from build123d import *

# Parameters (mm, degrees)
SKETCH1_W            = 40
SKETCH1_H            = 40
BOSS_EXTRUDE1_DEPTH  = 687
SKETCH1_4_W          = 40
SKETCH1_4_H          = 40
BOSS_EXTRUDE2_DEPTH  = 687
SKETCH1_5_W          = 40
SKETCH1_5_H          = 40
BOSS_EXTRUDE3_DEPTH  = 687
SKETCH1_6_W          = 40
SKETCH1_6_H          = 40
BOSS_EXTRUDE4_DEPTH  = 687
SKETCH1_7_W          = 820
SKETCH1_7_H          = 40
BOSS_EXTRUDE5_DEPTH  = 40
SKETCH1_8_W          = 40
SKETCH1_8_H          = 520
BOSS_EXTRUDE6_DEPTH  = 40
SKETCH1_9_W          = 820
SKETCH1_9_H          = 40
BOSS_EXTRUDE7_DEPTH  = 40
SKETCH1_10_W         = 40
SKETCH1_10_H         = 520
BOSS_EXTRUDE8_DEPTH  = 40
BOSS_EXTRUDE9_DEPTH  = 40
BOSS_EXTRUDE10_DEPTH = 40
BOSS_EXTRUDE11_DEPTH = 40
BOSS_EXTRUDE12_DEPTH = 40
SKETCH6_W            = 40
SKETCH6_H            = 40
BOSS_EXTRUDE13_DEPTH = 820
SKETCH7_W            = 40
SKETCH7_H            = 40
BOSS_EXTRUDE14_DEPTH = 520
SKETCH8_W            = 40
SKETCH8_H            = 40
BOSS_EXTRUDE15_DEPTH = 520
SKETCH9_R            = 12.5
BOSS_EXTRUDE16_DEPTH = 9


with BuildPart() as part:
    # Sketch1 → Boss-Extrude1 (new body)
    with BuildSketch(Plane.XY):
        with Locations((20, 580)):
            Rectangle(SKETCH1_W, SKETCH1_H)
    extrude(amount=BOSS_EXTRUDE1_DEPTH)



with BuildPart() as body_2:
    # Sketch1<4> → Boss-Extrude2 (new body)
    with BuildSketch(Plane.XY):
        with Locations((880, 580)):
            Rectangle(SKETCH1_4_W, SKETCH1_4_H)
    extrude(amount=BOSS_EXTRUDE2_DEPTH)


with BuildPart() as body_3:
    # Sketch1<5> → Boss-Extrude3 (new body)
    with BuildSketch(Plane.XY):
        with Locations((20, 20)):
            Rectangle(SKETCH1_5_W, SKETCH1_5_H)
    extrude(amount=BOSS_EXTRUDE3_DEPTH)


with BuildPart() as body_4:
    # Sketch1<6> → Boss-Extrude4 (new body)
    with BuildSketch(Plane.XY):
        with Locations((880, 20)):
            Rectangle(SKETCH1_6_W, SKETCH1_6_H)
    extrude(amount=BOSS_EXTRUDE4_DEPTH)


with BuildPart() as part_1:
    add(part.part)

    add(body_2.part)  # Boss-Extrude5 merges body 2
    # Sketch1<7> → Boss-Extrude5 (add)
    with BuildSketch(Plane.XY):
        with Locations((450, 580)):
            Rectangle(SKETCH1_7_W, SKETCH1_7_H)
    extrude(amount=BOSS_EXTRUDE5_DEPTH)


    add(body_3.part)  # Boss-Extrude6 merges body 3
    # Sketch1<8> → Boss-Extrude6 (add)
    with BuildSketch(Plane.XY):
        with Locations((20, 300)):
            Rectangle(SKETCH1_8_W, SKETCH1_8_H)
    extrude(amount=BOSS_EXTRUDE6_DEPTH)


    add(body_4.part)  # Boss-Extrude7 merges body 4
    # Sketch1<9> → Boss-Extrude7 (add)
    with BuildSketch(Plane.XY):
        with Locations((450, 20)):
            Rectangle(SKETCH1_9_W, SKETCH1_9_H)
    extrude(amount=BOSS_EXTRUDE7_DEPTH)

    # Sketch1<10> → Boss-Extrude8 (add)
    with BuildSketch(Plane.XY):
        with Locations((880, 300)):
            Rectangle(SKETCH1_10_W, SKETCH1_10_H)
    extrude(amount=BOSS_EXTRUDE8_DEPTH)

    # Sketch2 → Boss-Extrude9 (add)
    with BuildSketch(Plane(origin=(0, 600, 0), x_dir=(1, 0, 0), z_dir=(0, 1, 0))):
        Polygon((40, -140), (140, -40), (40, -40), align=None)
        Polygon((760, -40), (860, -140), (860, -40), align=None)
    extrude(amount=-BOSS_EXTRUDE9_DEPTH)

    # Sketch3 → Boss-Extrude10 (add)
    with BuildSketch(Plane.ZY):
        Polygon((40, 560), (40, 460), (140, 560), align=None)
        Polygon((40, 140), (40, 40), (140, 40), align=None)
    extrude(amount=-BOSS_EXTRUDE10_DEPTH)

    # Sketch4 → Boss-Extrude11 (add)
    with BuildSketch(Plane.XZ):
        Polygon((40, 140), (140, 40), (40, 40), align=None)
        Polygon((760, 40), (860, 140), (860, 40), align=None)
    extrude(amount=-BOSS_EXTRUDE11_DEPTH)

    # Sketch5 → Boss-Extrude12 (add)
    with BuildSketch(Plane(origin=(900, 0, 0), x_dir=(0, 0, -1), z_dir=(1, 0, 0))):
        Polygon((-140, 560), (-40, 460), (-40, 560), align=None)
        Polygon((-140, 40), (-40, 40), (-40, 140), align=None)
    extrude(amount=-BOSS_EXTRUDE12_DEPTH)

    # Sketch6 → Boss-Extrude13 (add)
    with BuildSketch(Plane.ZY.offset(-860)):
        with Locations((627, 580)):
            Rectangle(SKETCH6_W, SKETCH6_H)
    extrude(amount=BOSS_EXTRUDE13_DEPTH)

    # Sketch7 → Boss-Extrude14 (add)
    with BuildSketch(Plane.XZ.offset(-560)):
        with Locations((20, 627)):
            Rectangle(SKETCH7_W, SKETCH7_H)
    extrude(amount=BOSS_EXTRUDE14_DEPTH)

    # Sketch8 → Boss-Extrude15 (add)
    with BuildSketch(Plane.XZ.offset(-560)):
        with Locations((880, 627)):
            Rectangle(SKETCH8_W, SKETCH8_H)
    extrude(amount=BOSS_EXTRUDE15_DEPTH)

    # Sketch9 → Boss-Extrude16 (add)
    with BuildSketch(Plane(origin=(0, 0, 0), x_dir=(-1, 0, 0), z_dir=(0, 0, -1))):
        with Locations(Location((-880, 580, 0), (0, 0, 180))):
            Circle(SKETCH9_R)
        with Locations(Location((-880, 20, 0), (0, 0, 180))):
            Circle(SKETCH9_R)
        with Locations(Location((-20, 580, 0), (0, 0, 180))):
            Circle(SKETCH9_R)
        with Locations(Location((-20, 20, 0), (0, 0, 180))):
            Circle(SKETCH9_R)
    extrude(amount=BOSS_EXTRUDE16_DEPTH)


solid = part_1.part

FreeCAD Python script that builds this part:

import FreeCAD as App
import Part
import Sketcher
Q = App.Units.Quantity


def add_polygon(sketch, points):
    """Adds a closed chain of lines whose ends are joined by coincident constraints."""
    first, n = sketch.GeometryCount, len(points)
    for a, b in zip(points, points[1:] + points[:1]):
        sketch.addGeometry(Part.LineSegment(App.Vector(*a, 0), App.Vector(*b, 0)), False)
    for i in range(n):
        sketch.addConstraint(Sketcher.Constraint("Coincident", first + i, 2, first + (i + 1) % n, 1))

doc = App.newDocument("Part")
params = doc.addObject("Spreadsheet::Sheet", "Params")
for row, (alias, value) in enumerate([
    ("sketch1_width", "40 mm"),
    ("pad1_length", "687 mm"),
    ("sketch2_width", "40 mm"),
    ("pad2_length", "687 mm"),
    ("sketch3_width", "40 mm"),
    ("pad3_length", "687 mm"),
    ("sketch4_width", "40 mm"),
    ("pad4_length", "687 mm"),
    ("sketch5_width", "820 mm"),
    ("sketch5_height", "40 mm"),
    ("pad5_length", "40 mm"),
    ("sketch6_width", "40 mm"),
    ("sketch6_height", "520 mm"),
    ("pad6_length", "40 mm"),
    ("sketch7_width", "820 mm"),
    ("sketch7_height", "40 mm"),
    ("pad7_length", "40 mm"),
    ("sketch8_width", "40 mm"),
    ("sketch8_height", "520 mm"),
    ("pad8_length", "40 mm"),
    ("sketch9_width", "100 mm"),
    ("pad9_length", "40 mm"),
    ("sketch10_width", "100 mm"),
    ("pad10_length", "40 mm"),
    ("sketch11_width", "100 mm"),
    ("pad11_length", "40 mm"),
    ("sketch12_width", "100 mm"),
    ("pad12_length", "40 mm"),
    ("sketch13_width", "40 mm"),
    ("pad13_length", "820 mm"),
    ("sketch14_width", "40 mm"),
    ("pad14_length", "520 mm"),
    ("sketch15_width", "40 mm"),
    ("pad15_length", "520 mm"),
    ("sketch16_diameter", "25 mm"),
    ("pad16_length", "9 mm"),
], start=1):
    params.set(f"A{row}", alias)
    params.set(f"B{row}", "=" + value)
    params.setAlias(f"B{row}", alias)

body = doc.addObject("PartDesign::Body", "Body")

# Sketch on XY plane
sketch1 = body.newObject("Sketcher::SketchObject", "Sketch")
sketch1.AttachmentSupport = (doc.getObject("XY_Plane"), [""])
sketch1.MapMode = "FlatFace"
add_polygon(sketch1, [(0, 600), (0, 560), (40, 560), (40, 600)])  # lines 0-3
sketch1.addConstraint([
    Sketcher.Constraint("Vertical", 0),
    Sketcher.Constraint("Horizontal", 1),
    Sketcher.Constraint("Vertical", 2),
    Sketcher.Constraint("Horizontal", 3),
    Sketcher.Constraint("PointOnObject", 0, 2, -2),
    Sketcher.Constraint("Equal", 3, 0),
    Sketcher.Constraint("DistanceX", 1, 1, 1, 2, Q("40 mm")),
    Sketcher.Constraint("DistanceY", -1, 1, 0, 2, Q("560 mm")),
])
sketch1.setExpression("Constraints[10]", "Params.sketch1_width")
pad1 = body.newObject("PartDesign::Pad", "Pad")
pad1.Profile = sketch1
pad1.setExpression("Length", "Params.pad1_length")
body2 = doc.addObject("PartDesign::Body", "Body001")

# Sketch on XY plane
sketch2 = body2.newObject("Sketcher::SketchObject", "Sketch001")
sketch2.AttachmentSupport = (doc.getObject("XY_Plane001"), [""])
sketch2.MapMode = "FlatFace"
add_polygon(sketch2, [(860, 600), (860, 560), (900, 560), (900, 600)])  # lines 0-3
sketch2.addConstraint([
    Sketcher.Constraint("Vertical", 0),
    Sketcher.Constraint("Horizontal", 1),
    Sketcher.Constraint("Vertical", 2),
    Sketcher.Constraint("Horizontal", 3),
    Sketcher.Constraint("Equal", 3, 0),
    Sketcher.Constraint("DistanceX", 1, 1, 1, 2, Q("40 mm")),
    Sketcher.Constraint("DistanceX", -1, 1, 0, 2, Q("860 mm")),
    Sketcher.Constraint("DistanceY", -1, 1, 0, 2, Q("560 mm")),
])
sketch2.setExpression("Constraints[9]", "Params.sketch2_width")
pad2 = body2.newObject("PartDesign::Pad", "Pad001")
pad2.Profile = sketch2
pad2.setExpression("Length", "Params.pad2_length")
body3 = doc.addObject("PartDesign::Body", "Body002")

# Sketch on XY plane
sketch3 = body3.newObject("Sketcher::SketchObject", "Sketch002")
sketch3.AttachmentSupport = (doc.getObject("XY_Plane002"), [""])
sketch3.MapMode = "FlatFace"
add_polygon(sketch3, [(0, 40), (0, 0), (40, 0), (40, 40)])  # lines 0-3
sketch3.addConstraint([
    Sketcher.Constraint("Vertical", 0),
    Sketcher.Constraint("Horizontal", 1),
    Sketcher.Constraint("Vertical", 2),
    Sketcher.Constraint("Horizontal", 3),
    Sketcher.Constraint("Coincident", 0, 2, -1, 1),
    Sketcher.Constraint("Equal", 3, 0),
    Sketcher.Constraint("DistanceX", 1, 1, 1, 2, Q("40 mm")),
])
sketch3.setExpression("Constraints[10]", "Params.sketch3_width")
pad3 = body3.newObject("PartDesign::Pad", "Pad002")
pad3.Profile = sketch3
pad3.setExpression("Length", "Params.pad3_length")
body4 = doc.addObject("PartDesign::Body", "Body003")

# Sketch on XY plane
sketch4 = body4.newObject("Sketcher::SketchObject", "Sketch003")
sketch4.AttachmentSupport = (doc.getObject("XY_Plane003"), [""])
sketch4.MapMode = "FlatFace"
add_polygon(sketch4, [(860, 40), (860, 0), (900, 0), (900, 40)])  # lines 0-3
sketch4.addConstraint([
    Sketcher.Constraint("Vertical", 0),
    Sketcher.Constraint("Horizontal", 1),
    Sketcher.Constraint("Vertical", 2),
    Sketcher.Constraint("Horizontal", 3),
    Sketcher.Constraint("PointOnObject", 0, 2, -1),
    Sketcher.Constraint("Equal", 3, 0),
    Sketcher.Constraint("DistanceX", 1, 1, 1, 2, Q("40 mm")),
    Sketcher.Constraint("DistanceX", -1, 1, 0, 2, Q("860 mm")),
])
sketch4.setExpression("Constraints[10]", "Params.sketch4_width")
pad4 = body4.newObject("PartDesign::Pad", "Pad003")
pad4.Profile = sketch4
pad4.setExpression("Length", "Params.pad4_length")
body.AllowCompound = True
doc.recompute()

boolean = body.newObject("PartDesign::Boolean", "Boolean")
boolean.Type = "Fuse"
boolean.addObjects([body2])

# Sketch on XY plane
sketch5 = body.newObject("Sketcher::SketchObject", "Sketch004")
sketch5.AttachmentSupport = (doc.getObject("XY_Plane"), [""])
sketch5.MapMode = "FlatFace"
add_polygon(sketch5, [(40, 600), (40, 560), (860, 560), (860, 600)])  # lines 0-3
sketch5.addConstraint([
    Sketcher.Constraint("Vertical", 0),
    Sketcher.Constraint("Horizontal", 1),
    Sketcher.Constraint("Vertical", 2),
    Sketcher.Constraint("Horizontal", 3),
    Sketcher.Constraint("DistanceX", 1, 1, 1, 2, Q("820 mm")),
    Sketcher.Constraint("DistanceY", 0, 2, 0, 1, Q("40 mm")),
    Sketcher.Constraint("DistanceX", -1, 1, 0, 2, Q("40 mm")),
    Sketcher.Constraint("DistanceY", -1, 1, 0, 2, Q("560 mm")),
])
sketch5.setExpression("Constraints[8]", "Params.sketch5_width")
sketch5.setExpression("Constraints[9]", "Params.sketch5_height")
pad5 = body.newObject("PartDesign::Pad", "Pad004")
pad5.Profile = sketch5
pad5.setExpression("Length", "Params.pad5_length")
doc.recompute()

boolean2 = body.newObject("PartDesign::Boolean", "Boolean001")
boolean2.Type = "Fuse"
boolean2.addObjects([body3])

# Sketch on XY plane
sketch6 = body.newObject("Sketcher::SketchObject", "Sketch005")
sketch6.AttachmentSupport = (doc.getObject("XY_Plane"), [""])
sketch6.MapMode = "FlatFace"
add_polygon(sketch6, [(0, 560), (0, 40), (40, 40), (40, 560)])  # lines 0-3
sketch6.addConstraint([
    Sketcher.Constraint("Vertical", 0),
    Sketcher.Constraint("Horizontal", 1),
    Sketcher.Constraint("Vertical", 2),
    Sketcher.Constraint("Horizontal", 3),
    Sketcher.Constraint("PointOnObject", 0, 2, -2),
    Sketcher.Constraint("DistanceX", 1, 1, 1, 2, Q("40 mm")),
    Sketcher.Constraint("DistanceY", 0, 2, 0, 1, Q("520 mm")),
    Sketcher.Constraint("DistanceY", -1, 1, 0, 2, Q("40 mm")),
])
sketch6.setExpression("Constraints[9]", "Params.sketch6_width")
sketch6.setExpression("Constraints[10]", "Params.sketch6_height")
pad6 = body.newObject("PartDesign::Pad", "Pad005")
pad6.Profile = sketch6
pad6.setExpression("Length", "Params.pad6_length")
doc.recompute()

boolean3 = body.newObject("PartDesign::Boolean", "Boolean002")
boolean3.Type = "Fuse"
boolean3.addObjects([body4])

# Sketch on XY plane
sketch7 = body.newObject("Sketcher::SketchObject", "Sketch006")
sketch7.AttachmentSupport = (doc.getObject("XY_Plane"), [""])
sketch7.MapMode = "FlatFace"
add_polygon(sketch7, [(40, 40), (40, 0), (860, 0), (860, 40)])  # lines 0-3
sketch7.addConstraint([
    Sketcher.Constraint("Vertical", 0),
    Sketcher.Constraint("Horizontal", 1),
    Sketcher.Constraint("Vertical", 2),
    Sketcher.Constraint("Horizontal", 3),
    Sketcher.Constraint("PointOnObject", 0, 2, -1),
    Sketcher.Constraint("DistanceX", 1, 1, 1, 2, Q("820 mm")),
    Sketcher.Constraint("DistanceY", 0, 2, 0, 1, Q("40 mm")),
    Sketcher.Constraint("DistanceX", -1, 1, 0, 2, Q("40 mm")),
])
sketch7.setExpression("Constraints[9]", "Params.sketch7_width")
sketch7.setExpression("Constraints[10]", "Params.sketch7_height")
pad7 = body.newObject("PartDesign::Pad", "Pad006")
pad7.Profile = sketch7
pad7.setExpression("Length", "Params.pad7_length")

# Sketch on XY plane
sketch8 = body.newObject("Sketcher::SketchObject", "Sketch007")
sketch8.AttachmentSupport = (doc.getObject("XY_Plane"), [""])
sketch8.MapMode = "FlatFace"
add_polygon(sketch8, [(860, 560), (860, 40), (900, 40), (900, 560)])  # lines 0-3
sketch8.addConstraint([
    Sketcher.Constraint("Vertical", 0),
    Sketcher.Constraint("Horizontal", 1),
    Sketcher.Constraint("Vertical", 2),
    Sketcher.Constraint("Horizontal", 3),
    Sketcher.Constraint("DistanceX", 1, 1, 1, 2, Q("40 mm")),
    Sketcher.Constraint("DistanceY", 0, 2, 0, 1, Q("520 mm")),
    Sketcher.Constraint("DistanceX", -1, 1, 0, 2, Q("860 mm")),
    Sketcher.Constraint("DistanceY", -1, 1, 0, 2, Q("40 mm")),
])
sketch8.setExpression("Constraints[8]", "Params.sketch8_width")
sketch8.setExpression("Constraints[9]", "Params.sketch8_height")
pad8 = body.newObject("PartDesign::Pad", "Pad007")
pad8.Profile = sketch8
pad8.setExpression("Length", "Params.pad8_length")

# Sketch on XZ plane
sketch9 = body.newObject("Sketcher::SketchObject", "Sketch008")
sketch9.AttachmentSupport = (doc.getObject("XZ_Plane"), [""])
sketch9.MapMode = "FlatFace"
sketch9.AttachmentOffset = App.Placement(App.Vector(0, 0, -600), App.Rotation())
add_polygon(sketch9, [(40, 140), (140, 40), (40, 40)])  # lines 0-2
add_polygon(sketch9, [(760, 40), (860, 140), (860, 40)])  # lines 3-5
sketch9.addConstraint([
    Sketcher.Constraint("Horizontal", 1),
    Sketcher.Constraint("Vertical", 2),
    Sketcher.Constraint("Vertical", 4),
    Sketcher.Constraint("Horizontal", 5),
    Sketcher.Constraint("Perpendicular", 0, 3),
    Sketcher.Constraint("Horizontal", 2, 2, 3, 2),
    Sketcher.Constraint("Horizontal", 1, 2, 4, 2),
    Sketcher.Constraint("Equal", 1, 5),
    Sketcher.Constraint("DistanceX", 1, 2, 1, 1, Q("100 mm")),
    Sketcher.Constraint("DistanceX", -1, 1, 0, 2, Q("140 mm")),
    Sketcher.Constraint("DistanceY", -1, 1, 0, 2, Q("40 mm")),
    Sketcher.Constraint("DistanceX", -1, 1, 3, 2, Q("860 mm")),
])
sketch9.setExpression("Constraints[14]", "Params.sketch9_width")
pad9 = body.newObject("PartDesign::Pad", "Pad008")
pad9.Profile = sketch9
pad9.setExpression("Length", "Params.pad9_length")

# Sketch on YZ plane
sketch10 = body.newObject("Sketcher::SketchObject", "Sketch009")
sketch10.AttachmentSupport = (doc.getObject("YZ_Plane"), [""])
sketch10.MapMode = "FlatFace"
add_polygon(sketch10, [(560, 40), (460, 40), (560, 140)])  # lines 0-2
add_polygon(sketch10, [(140, 40), (40, 40), (40, 140)])  # lines 3-5
sketch10.addConstraint([
    Sketcher.Constraint("Horizontal", 0),
    Sketcher.Constraint("Vertical", 2),
    Sketcher.Constraint("Horizontal", 3),
    Sketcher.Constraint("Vertical", 4),
    Sketcher.Constraint("Perpendicular", 1, 5),
    Sketcher.Constraint("Horizontal", 2, 2, 3, 2),
    Sketcher.Constraint("Horizontal", 1, 2, 4, 2),
    Sketcher.Constraint("Equal", 0, 3),
    Sketcher.Constraint("DistanceX", 0, 2, 0, 1, Q("100 mm")),
    Sketcher.Constraint("DistanceX", -1, 1, 0, 2, Q("460 mm")),
    Sketcher.Constraint("DistanceY", -1, 1, 0, 2, Q("40 mm")),
    Sketcher.Constraint("DistanceX", -1, 1, 3, 2, Q("40 mm")),
])
sketch10.setExpression("Constraints[14]", "Params.sketch10_width")
pad10 = body.newObject("PartDesign::Pad", "Pad009")
pad10.Profile = sketch10
pad10.setExpression("Length", "Params.pad10_length")

# Sketch on XZ plane
sketch11 = body.newObject("Sketcher::SketchObject", "Sketch010")
sketch11.AttachmentSupport = (doc.getObject("XZ_Plane"), [""])
sketch11.MapMode = "FlatFace"
add_polygon(sketch11, [(140, 40), (40, 140), (40, 40)])  # lines 0-2
add_polygon(sketch11, [(860, 140), (760, 40), (860, 40)])  # lines 3-5
sketch11.addConstraint([
    Sketcher.Constraint("Vertical", 1),
    Sketcher.Constraint("Horizontal", 2),
    Sketcher.Constraint("Horizontal", 4),
    Sketcher.Constraint("Vertical", 5),
    Sketcher.Constraint("Perpendicular", 0, 3),
    Sketcher.Constraint("Horizontal", 2, 2, 3, 2),
    Sketcher.Constraint("Horizontal", 0, 2, 5, 2),
    Sketcher.Constraint("Equal", 2, 4),
    Sketcher.Constraint("DistanceX", 2, 1, 2, 2, Q("100 mm")),
    Sketcher.Constraint("DistanceX", -1, 1, 0, 2, Q("40 mm")),
    Sketcher.Constraint("DistanceY", -1, 1, 0, 2, Q("140 mm")),
    Sketcher.Constraint("DistanceX", -1, 1, 3, 2, Q("760 mm")),
])
sketch11.setExpression("Constraints[14]", "Params.sketch11_width")
pad11 = body.newObject("PartDesign::Pad", "Pad010")
pad11.Profile = sketch11
pad11.setExpression("Length", "Params.pad11_length")
pad11.Reversed = True

# Sketch on YZ plane
sketch12 = body.newObject("Sketcher::SketchObject", "Sketch011")
sketch12.AttachmentSupport = (doc.getObject("YZ_Plane"), [""])
sketch12.MapMode = "FlatFace"
sketch12.AttachmentOffset = App.Placement(App.Vector(0, 0, 900), App.Rotation())
add_polygon(sketch12, [(560, 140), (460, 40), (560, 40)])  # lines 0-2
add_polygon(sketch12, [(40, 140), (40, 40), (140, 40)])  # lines 3-5
sketch12.addConstraint([
    Sketcher.Constraint("Horizontal", 1),
    Sketcher.Constraint("Vertical", 2),
    Sketcher.Constraint("Vertical", 3),
    Sketcher.Constraint("Horizontal", 4),
    Sketcher.Constraint("Perpendicular", 0, 5),
    Sketcher.Constraint("Horizontal", 1, 2, 3, 2),
    Sketcher.Constraint("Horizontal", 2, 2, 5, 2),
    Sketcher.Constraint("Equal", 1, 4),
    Sketcher.Constraint("DistanceX", 1, 1, 1, 2, Q("100 mm")),
    Sketcher.Constraint("DistanceX", -1, 1, 0, 2, Q("460 mm")),
    Sketcher.Constraint("DistanceY", -1, 1, 0, 2, Q("40 mm")),
    Sketcher.Constraint("DistanceX", -1, 1, 3, 2, Q("40 mm")),
])
sketch12.setExpression("Constraints[14]", "Params.sketch12_width")
pad12 = body.newObject("PartDesign::Pad", "Pad011")
pad12.Profile = sketch12
pad12.setExpression("Length", "Params.pad12_length")
pad12.Reversed = True

# Sketch on YZ plane
sketch13 = body.newObject("Sketcher::SketchObject", "Sketch012")
sketch13.AttachmentSupport = (doc.getObject("YZ_Plane"), [""])
sketch13.MapMode = "FlatFace"
sketch13.AttachmentOffset = App.Placement(App.Vector(0, 0, 860), App.Rotation())
add_polygon(sketch13, [(600, 607), (560, 607), (560, 647), (600, 647)])  # lines 0-3
sketch13.addConstraint([
    Sketcher.Constraint("Horizontal", 0),
    Sketcher.Constraint("Vertical", 1),
    Sketcher.Constraint("Horizontal", 2),
    Sketcher.Constraint("Vertical", 3),
    Sketcher.Constraint("Equal", 2, 1),
    Sketcher.Constraint("DistanceX", 0, 2, 0, 1, Q("40 mm")),
    Sketcher.Constraint("DistanceX", -1, 1, 0, 2, Q("560 mm")),
    Sketcher.Constraint("DistanceY", -1, 1, 0, 2, Q("607 mm")),
])
sketch13.setExpression("Constraints[9]", "Params.sketch13_width")
pad13 = body.newObject("PartDesign::Pad", "Pad012")
pad13.Profile = sketch13
pad13.setExpression("Length", "Params.pad13_length")
pad13.Reversed = True

# Sketch on XZ plane
sketch14 = body.newObject("Sketcher::SketchObject", "Sketch013")
sketch14.AttachmentSupport = (doc.getObject("XZ_Plane"), [""])
sketch14.MapMode = "FlatFace"
sketch14.AttachmentOffset = App.Placement(App.Vector(0, 0, -560), App.Rotation())
add_polygon(sketch14, [(0, 647), (0, 607), (40, 607), (40, 647)])  # lines 0-3
sketch14.addConstraint([
    Sketcher.Constraint("Vertical", 0),
    Sketcher.Constraint("Horizontal", 1),
    Sketcher.Constraint("Vertical", 2),
    Sketcher.Constraint("Horizontal", 3),
    Sketcher.Constraint("PointOnObject", 0, 2, -2),
    Sketcher.Constraint("Equal", 3, 0),
    Sketcher.Constraint("DistanceX", 1, 1, 1, 2, Q("40 mm")),
    Sketcher.Constraint("DistanceY", -1, 1, 0, 2, Q("607 mm")),
])
sketch14.setExpression("Constraints[10]", "Params.sketch14_width")
pad14 = body.newObject("PartDesign::Pad", "Pad013")
pad14.Profile = sketch14
pad14.setExpression("Length", "Params.pad14_length")

# Sketch on XZ plane
sketch15 = body.newObject("Sketcher::SketchObject", "Sketch014")
sketch15.AttachmentSupport = (doc.getObject("XZ_Plane"), [""])
sketch15.MapMode = "FlatFace"
sketch15.AttachmentOffset = App.Placement(App.Vector(0, 0, -560), App.Rotation())
add_polygon(sketch15, [(860, 647), (860, 607), (900, 607), (900, 647)])  # lines 0-3
sketch15.addConstraint([
    Sketcher.Constraint("Vertical", 0),
    Sketcher.Constraint("Horizontal", 1),
    Sketcher.Constraint("Vertical", 2),
    Sketcher.Constraint("Horizontal", 3),
    Sketcher.Constraint("Equal", 3, 0),
    Sketcher.Constraint("DistanceX", 1, 1, 1, 2, Q("40 mm")),
    Sketcher.Constraint("DistanceX", -1, 1, 0, 2, Q("860 mm")),
    Sketcher.Constraint("DistanceY", -1, 1, 0, 2, Q("607 mm")),
])
sketch15.setExpression("Constraints[9]", "Params.sketch15_width")
pad15 = body.newObject("PartDesign::Pad", "Pad014")
pad15.Profile = sketch15
pad15.setExpression("Length", "Params.pad15_length")

# Sketch on XY plane
sketch16 = body.newObject("Sketcher::SketchObject", "Sketch015")
sketch16.AttachmentSupport = (doc.getObject("XY_Plane"), [""])
sketch16.MapMode = "FlatFace"
sketch16.addGeometry([
    Part.Circle(App.Vector(880, 580, 0), App.Vector(0, 0, 1), 12),
    Part.Circle(App.Vector(880, 20, 0), App.Vector(0, 0, 1), 12),
    Part.Circle(App.Vector(20, 580, 0), App.Vector(0, 0, 1), 12),
    Part.Circle(App.Vector(20, 20, 0), App.Vector(0, 0, 1), 12),
], False)
sketch16.addConstraint([
    Sketcher.Constraint("Equal", 0, 1),
    Sketcher.Constraint("Equal", 1, 2),
    Sketcher.Constraint("Equal", 2, 3),
    Sketcher.Constraint("Horizontal", 0, 3, 2, 3),
    Sketcher.Constraint("Horizontal", 1, 3, 3, 3),
    Sketcher.Constraint("Vertical", 0, 3, 1, 3),
    Sketcher.Constraint("Vertical", 2, 3, 3, 3),
    Sketcher.Constraint("Diameter", 0, Q("25 mm")),
    Sketcher.Constraint("DistanceX", -1, 1, 0, 3, Q("880 mm")),
    Sketcher.Constraint("DistanceY", -1, 1, 0, 3, Q("580 mm")),
    Sketcher.Constraint("DistanceY", -1, 1, 1, 3, Q("20 mm")),
    Sketcher.Constraint("DistanceX", -1, 1, 2, 3, Q("20 mm")),
])
sketch16.setExpression("Constraints[7]", "Params.sketch16_diameter")
pad16 = body.newObject("PartDesign::Pad", "Pad015")
pad16.Profile = sketch16
pad16.setExpression("Length", "Params.pad16_length")
pad16.Reversed = True

doc.recompute()
